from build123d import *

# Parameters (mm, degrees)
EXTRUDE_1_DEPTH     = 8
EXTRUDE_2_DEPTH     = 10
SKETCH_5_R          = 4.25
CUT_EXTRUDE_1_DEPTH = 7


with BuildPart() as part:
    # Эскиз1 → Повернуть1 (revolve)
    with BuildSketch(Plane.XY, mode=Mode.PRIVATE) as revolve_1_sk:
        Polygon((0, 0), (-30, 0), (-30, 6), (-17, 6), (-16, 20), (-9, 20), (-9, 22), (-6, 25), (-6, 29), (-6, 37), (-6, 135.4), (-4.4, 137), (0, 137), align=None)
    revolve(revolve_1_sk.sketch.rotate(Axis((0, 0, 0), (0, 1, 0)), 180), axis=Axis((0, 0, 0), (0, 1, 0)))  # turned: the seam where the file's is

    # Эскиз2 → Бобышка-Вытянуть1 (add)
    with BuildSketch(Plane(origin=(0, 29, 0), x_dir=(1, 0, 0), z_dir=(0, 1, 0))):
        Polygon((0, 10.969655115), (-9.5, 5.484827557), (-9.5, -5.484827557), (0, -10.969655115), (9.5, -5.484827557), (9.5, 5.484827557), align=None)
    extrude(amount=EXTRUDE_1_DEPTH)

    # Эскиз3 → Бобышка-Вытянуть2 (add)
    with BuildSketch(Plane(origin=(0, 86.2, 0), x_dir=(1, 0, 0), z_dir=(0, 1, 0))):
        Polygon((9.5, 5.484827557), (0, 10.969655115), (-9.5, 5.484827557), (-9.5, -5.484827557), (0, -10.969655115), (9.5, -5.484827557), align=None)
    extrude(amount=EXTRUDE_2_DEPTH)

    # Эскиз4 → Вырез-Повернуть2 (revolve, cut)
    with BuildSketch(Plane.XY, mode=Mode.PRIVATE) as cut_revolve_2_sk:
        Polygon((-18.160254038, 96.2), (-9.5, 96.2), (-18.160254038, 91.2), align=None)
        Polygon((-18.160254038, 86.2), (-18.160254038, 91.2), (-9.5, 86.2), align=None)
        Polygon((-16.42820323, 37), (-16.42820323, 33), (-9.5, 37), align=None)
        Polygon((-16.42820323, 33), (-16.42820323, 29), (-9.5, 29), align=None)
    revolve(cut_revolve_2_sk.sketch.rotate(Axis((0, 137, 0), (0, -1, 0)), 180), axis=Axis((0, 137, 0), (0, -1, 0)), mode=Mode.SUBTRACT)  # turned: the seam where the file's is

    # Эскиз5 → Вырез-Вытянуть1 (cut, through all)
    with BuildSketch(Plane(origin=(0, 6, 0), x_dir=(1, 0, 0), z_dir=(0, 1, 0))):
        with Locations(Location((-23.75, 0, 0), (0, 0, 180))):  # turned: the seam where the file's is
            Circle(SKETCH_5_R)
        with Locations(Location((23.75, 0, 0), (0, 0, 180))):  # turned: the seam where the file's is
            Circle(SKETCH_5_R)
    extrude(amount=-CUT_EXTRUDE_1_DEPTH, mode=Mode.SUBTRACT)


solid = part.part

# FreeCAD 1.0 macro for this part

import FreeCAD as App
import Part
import Sketcher

V = App.Vector
Q = App.Units.Quantity

doc = App.newDocument("Part")
body = doc.addObject("PartDesign::Body", "Body")

# Sketch on XY plane
sketch1 = body.newObject("Sketcher::SketchObject", "Sketch")
sketch1.AttachmentSupport = (doc.getObject("XY_Plane"), [""])
sketch1.MapMode = "FlatFace"
sketch1.addGeometry([
    Part.LineSegment(V(-30, 0, 0), V(0, 0, 0)),  # 0
    Part.LineSegment(V(0, 0, 0), V(0, 137, 0)),  # 1
    Part.LineSegment(V(0, 137, 0), V(-4.4, 137, 0)),  # 2
    Part.LineSegment(V(-4.4, 137, 0), V(-6, 135.4, 0)),  # 3
    Part.LineSegment(V(-6, 135.4, 0), V(-6, 25, 0)),  # 4
    Part.LineSegment(V(-6, 25, 0), V(-9, 22, 0)),  # 5
    Part.LineSegment(V(-9, 22, 0), V(-9, 20, 0)),  # 6
    Part.LineSegment(V(-9, 20, 0), V(-16, 20, 0)),  # 7
    Part.LineSegment(V(-16, 20, 0), V(-17, 6, 0)),  # 8
    Part.LineSegment(V(-17, 6, 0), V(-30, 6, 0)),  # 9
    Part.LineSegment(V(-30, 6, 0), V(-30, 0, 0)),  # 10
], False)
sketch1.addConstraint([
    Sketcher.Constraint("Coincident", 0, 2, 1, 1),
    Sketcher.Constraint("Coincident", 1, 2, 2, 1),
    Sketcher.Constraint("Coincident", 2, 2, 3, 1),
    Sketcher.Constraint("Coincident", 3, 2, 4, 1),
    Sketcher.Constraint("Coincident", 4, 2, 5, 1),
    Sketcher.Constraint("Coincident", 5, 2, 6, 1),
    Sketcher.Constraint("Coincident", 6, 2, 7, 1),
    Sketcher.Constraint("Coincident", 7, 2, 8, 1),
    Sketcher.Constraint("Coincident", 8, 2, 9, 1),
    Sketcher.Constraint("Coincident", 9, 2, 10, 1),
    Sketcher.Constraint("Coincident", 10, 2, 0, 1),
    Sketcher.Constraint("Horizontal", 0),
    Sketcher.Constraint("Vertical", 1),
    Sketcher.Constraint("Horizontal", 2),
    Sketcher.Constraint("Vertical", 4),
    Sketcher.Constraint("Vertical", 6),
    Sketcher.Constraint("Horizontal", 7),
    Sketcher.Constraint("Horizontal", 9),
    Sketcher.Constraint("Vertical", 10),
    Sketcher.Constraint("Coincident", 0, 2, -1, 1),
    Sketcher.Constraint("Parallel", 3, 5),
    Sketcher.Constraint("DistanceX", 0, 1, 0, 2, Q("30 mm")),
    Sketcher.Constraint("DistanceX", 7, 2, 7, 1, Q("7 mm")),
    Sketcher.Constraint("DistanceX", 9, 2, 9, 1, Q("13 mm")),
    Sketcher.Constraint("DistanceY", 1, 1, 1, 2, Q("137 mm")),
    Sketcher.Constraint("DistanceY", 6, 2, 6, 1, Q("2 mm")),
    Sketcher.Constraint("DistanceY", 10, 2, 10, 1, Q("6 mm")),
    Sketcher.Constraint("Angle", 3, Q("-135 deg")),
    Sketcher.Constraint("DistanceX", 2, 2, 2, 1, Q("4.4 mm")),
    Sketcher.Constraint("DistanceY", 4, 2, 4, 1, Q("110.4 mm")),
    Sketcher.Constraint("DistanceX", 3, 2, -1, 1, Q("6 mm")),
    Sketcher.Constraint("DistanceX", 5, 2, -1, 1, Q("9 mm")),
])
revolution = body.newObject("PartDesign::Revolution", "Revolution")
revolution.Profile = sketch1
revolution.ReferenceAxis = (sketch1, ["V_Axis"])
revolution.Angle = 360

# Sketch on XZ plane
sketch2 = body.newObject("Sketcher::SketchObject", "Sketch001")
sketch2.AttachmentSupport = (doc.getObject("XZ_Plane"), [""])
sketch2.MapMode = "FlatFace"
sketch2.AttachmentOffset = App.Placement(V(0, 0, -29), App.Rotation())
sketch2.addGeometry([
    Part.LineSegment(V(0, -10.969655, 0), V(-9.5, -5.484828, 0)),  # 0
    Part.LineSegment(V(-9.5, -5.484828, 0), V(-9.5, 5.484828, 0)),  # 1
    Part.LineSegment(V(-9.5, 5.484828, 0), V(0, 10.969655, 0)),  # 2
    Part.LineSegment(V(0, 10.969655, 0), V(9.5, 5.484828, 0)),  # 3
    Part.LineSegment(V(9.5, 5.484828, 0), V(9.5, -5.484828, 0)),  # 4
    Part.LineSegment(V(9.5, -5.484828, 0), V(0, -10.969655, 0)),  # 5
], False)
sketch2.addConstraint([
    Sketcher.Constraint("Coincident", 0, 2, 1, 1),
    Sketcher.Constraint("Coincident", 1, 2, 2, 1),
    Sketcher.Constraint("Coincident", 2, 2, 3, 1),
    Sketcher.Constraint("Coincident", 3, 2, 4, 1),
    Sketcher.Constraint("Coincident", 4, 2, 5, 1),
    Sketcher.Constraint("Coincident", 5, 2, 0, 1),
    Sketcher.Constraint("Vertical", 1),
    Sketcher.Constraint("Vertical", 4),
    Sketcher.Constraint("Symmetric", 0, 2, 3, 2, -1, 1),
    Sketcher.Constraint("Symmetric", 2, 2, 5, 2, -1, 1),
    Sketcher.Constraint("PointOnObject", 2, 2, -2),
    Sketcher.Constraint("Parallel", 2, 5),
    Sketcher.Constraint("Horizontal", 1, 2, 3, 2),
    Sketcher.Constraint("Angle", 0, Q("150 deg")),
    Sketcher.Constraint("DistanceX", 1, 2, 3, 2, Q("19 mm")),
    Sketcher.Constraint("DistanceY", 1, 1, 1, 2, Q("10.969655 mm")),
])
pad1 = body.newObject("PartDesign::Pad", "Pad")
pad1.Profile = sketch2
pad1.Length = 8
pad1.Reversed = True

# Sketch on XZ plane
sketch3 = body.newObject("Sketcher::SketchObject", "Sketch002")
sketch3.AttachmentSupport = (doc.getObject("XZ_Plane"), [""])
sketch3.MapMode = "FlatFace"
sketch3.AttachmentOffset = App.Placement(V(0, 0, -86.2), App.Rotation())
sketch3.addGeometry([
    Part.LineSegment(V(9.5, -5.484828, 0), V(0, -10.969655, 0)),  # 0
    Part.LineSegment(V(0, -10.969655, 0), V(-9.5, -5.484828, 0)),  # 1
    Part.LineSegment(V(-9.5, -5.484828, 0), V(-9.5, 5.484828, 0)),  # 2
    Part.LineSegment(V(-9.5, 5.484828, 0), V(0, 10.969655, 0)),  # 3
    Part.LineSegment(V(0, 10.969655, 0), V(9.5, 5.484828, 0)),  # 4
    Part.LineSegment(V(9.5, 5.484828, 0), V(9.5, -5.484828, 0)),  # 5
], False)
sketch3.addConstraint([
    Sketcher.Constraint("Coincident", 0, 2, 1, 1),
    Sketcher.Constraint("Coincident", 1, 2, 2, 1),
    Sketcher.Constraint("Coincident", 2, 2, 3, 1),
    Sketcher.Constraint("Coincident", 3, 2, 4, 1),
    Sketcher.Constraint("Coincident", 4, 2, 5, 1),
    Sketcher.Constraint("Coincident", 5, 2, 0, 1),
    Sketcher.Constraint("Vertical", 2),
    Sketcher.Constraint("Vertical", 5),
    Sketcher.Constraint("Symmetric", 0, 2, 3, 2, -1, 1),
    Sketcher.Constraint("Symmetric", 1, 2, 4, 2, -1, 1),
    Sketcher.Constraint("PointOnObject", 0, 2, -2),
    Sketcher.Constraint("Parallel", 0, 3),
    Sketcher.Constraint("Horizontal", 2, 2, 4, 2),
    Sketcher.Constraint("Angle", 0, Q("-150 deg")),
    Sketcher.Constraint("DistanceX", 2, 2, 4, 2, Q("19 mm")),
    Sketcher.Constraint("DistanceY", 2, 1, 2, 2, Q("10.969655 mm")),
])
pad2 = body.newObject("PartDesign::Pad", "Pad001")
pad2.Profile = sketch3
pad2.Length = 10
pad2.Reversed = True

# Sketch on XY plane
sketch4 = body.newObject("Sketcher::SketchObject", "Sketch003")
sketch4.AttachmentSupport = (doc.getObject("XY_Plane"), [""])
sketch4.MapMode = "FlatFace"
sketch4.addGeometry([
    Part.LineSegment(V(-9.5, 96.2, 0), V(-18.160254, 96.2, 0)),  # 0
    Part.LineSegment(V(-18.160254, 96.2, 0), V(-18.160254, 91.2, 0)),  # 1
    Part.LineSegment(V(-18.160254, 91.2, 0), V(-9.5, 96.2, 0)),  # 2
    Part.LineSegment(V(-18.160254, 91.2, 0), V(-18.160254, 86.2, 0)),  # 3
    Part.LineSegment(V(-18.160254, 86.2, 0), V(-9.5, 86.2, 0)),  # 4
    Part.LineSegment(V(-9.5, 86.2, 0), V(-18.160254, 91.2, 0)),  # 5
    Part.LineSegment(V(-16.428203, 37, 0), V(-16.428203, 33, 0)),  # 6
    Part.LineSegment(V(-16.428203, 33, 0), V(-9.5, 37, 0)),  # 7
    Part.LineSegment(V(-9.5, 37, 0), V(-16.428203, 37, 0)),  # 8
    Part.LineSegment(V(-16.428203, 33, 0), V(-16.428203, 29, 0)),  # 9
    Part.LineSegment(V(-16.428203, 29, 0), V(-9.5, 29, 0)),  # 10
    Part.LineSegment(V(-9.5, 29, 0), V(-16.428203, 33, 0)),  # 11
], False)
sketch4.addConstraint([
    Sketcher.Constraint("Coincident", 0, 2, 1, 1),
    Sketcher.Constraint("Coincident", 1, 2, 2, 1),
    Sketcher.Constraint("Coincident", 2, 2, 0, 1),
    Sketcher.Constraint("Coincident", 3, 2, 4, 1),
    Sketcher.Constraint("Coincident", 4, 2, 5, 1),
    Sketcher.Constraint("Coincident", 5, 2, 3, 1),
    Sketcher.Constraint("Coincident", 6, 2, 7, 1),
    Sketcher.Constraint("Coincident", 7, 2, 8, 1),
    Sketcher.Constraint("Coincident", 8, 2, 6, 1),
    Sketcher.Constraint("Coincident", 9, 2, 10, 1),
    Sketcher.Constraint("Coincident", 10, 2, 11, 1),
    Sketcher.Constraint("Coincident", 11, 2, 9, 1),
    Sketcher.Constraint("Horizontal", 0),
    Sketcher.Constraint("Vertical", 1),
    Sketcher.Constraint("Vertical", 3),
    Sketcher.Constraint("Horizontal", 4),
    Sketcher.Constraint("Vertical", 6),
    Sketcher.Constraint("Horizontal", 8),
    Sketcher.Constraint("Vertical", 9),
    Sketcher.Constraint("Horizontal", 10),
    Sketcher.Constraint("Coincident", 5, 2, 1, 2),
    Sketcher.Constraint("Coincident", 11, 2, 6, 2),
    Sketcher.Constraint("Parallel", 2, 7),
    Sketcher.Constraint("Parallel", 5, 11),
    Sketcher.Constraint("Vertical", 2, 2, 4, 2),
    Sketcher.Constraint("Vertical", 4, 2, 7, 2),
    Sketcher.Constraint("Vertical", 7, 2, 10, 2),
    Sketcher.Constraint("Equal", 1, 3),
    Sketcher.Constraint("DistanceY", 1, 2, 1, 1, Q("5 mm")),
    Sketcher.Constraint("DistanceY", 6, 2, 6, 1, Q("4 mm")),
    Sketcher.Constraint("Angle", 2, Q("30 deg")),
    Sketcher.Constraint("DistanceY", -1, 1, 6, 2, Q("33 mm")),
    Sketcher.Constraint("DistanceY", -1, 1, 0, 2, Q("96.2 mm")),
    Sketcher.Constraint("DistanceX", 2, 2, -1, 1, Q("9.5 mm")),
])
groove = body.newObject("PartDesign::Groove", "Groove")
groove.Profile = sketch4
groove.ReferenceAxis = (sketch4, ["V_Axis"])
groove.Angle = 360

# Sketch on XZ plane
sketch5 = body.newObject("Sketcher::SketchObject", "Sketch004")
sketch5.AttachmentSupport = (doc.getObject("XZ_Plane"), [""])
sketch5.MapMode = "FlatFace"
sketch5.AttachmentOffset = App.Placement(V(0, 0, -6), App.Rotation())
sketch5.addGeometry([
    Part.Circle(V(-23.75, 0, 0), V(0, 0, 1), 4.25),
    Part.Circle(V(23.75, 0, 0), V(0, 0, 1), 4.25),
], False)
sketch5.addConstraint([
    Sketcher.Constraint("Equal", 0, 1),
    Sketcher.Constraint("Symmetric", 0, 3, 1, 3, -1, 1),
    Sketcher.Constraint("PointOnObject", 0, 3, -1),
    Sketcher.Constraint("Diameter", 0, Q("8.5 mm")),
    Sketcher.Constraint("DistanceX", 0, 3, 1, 3, Q("47.5 mm")),
])
pocket1 = body.newObject("PartDesign::Pocket", "Pocket")
pocket1.Profile = sketch5
pocket1.Type = "ThroughAll"
pocket1.Reversed = True

doc.recompute()
